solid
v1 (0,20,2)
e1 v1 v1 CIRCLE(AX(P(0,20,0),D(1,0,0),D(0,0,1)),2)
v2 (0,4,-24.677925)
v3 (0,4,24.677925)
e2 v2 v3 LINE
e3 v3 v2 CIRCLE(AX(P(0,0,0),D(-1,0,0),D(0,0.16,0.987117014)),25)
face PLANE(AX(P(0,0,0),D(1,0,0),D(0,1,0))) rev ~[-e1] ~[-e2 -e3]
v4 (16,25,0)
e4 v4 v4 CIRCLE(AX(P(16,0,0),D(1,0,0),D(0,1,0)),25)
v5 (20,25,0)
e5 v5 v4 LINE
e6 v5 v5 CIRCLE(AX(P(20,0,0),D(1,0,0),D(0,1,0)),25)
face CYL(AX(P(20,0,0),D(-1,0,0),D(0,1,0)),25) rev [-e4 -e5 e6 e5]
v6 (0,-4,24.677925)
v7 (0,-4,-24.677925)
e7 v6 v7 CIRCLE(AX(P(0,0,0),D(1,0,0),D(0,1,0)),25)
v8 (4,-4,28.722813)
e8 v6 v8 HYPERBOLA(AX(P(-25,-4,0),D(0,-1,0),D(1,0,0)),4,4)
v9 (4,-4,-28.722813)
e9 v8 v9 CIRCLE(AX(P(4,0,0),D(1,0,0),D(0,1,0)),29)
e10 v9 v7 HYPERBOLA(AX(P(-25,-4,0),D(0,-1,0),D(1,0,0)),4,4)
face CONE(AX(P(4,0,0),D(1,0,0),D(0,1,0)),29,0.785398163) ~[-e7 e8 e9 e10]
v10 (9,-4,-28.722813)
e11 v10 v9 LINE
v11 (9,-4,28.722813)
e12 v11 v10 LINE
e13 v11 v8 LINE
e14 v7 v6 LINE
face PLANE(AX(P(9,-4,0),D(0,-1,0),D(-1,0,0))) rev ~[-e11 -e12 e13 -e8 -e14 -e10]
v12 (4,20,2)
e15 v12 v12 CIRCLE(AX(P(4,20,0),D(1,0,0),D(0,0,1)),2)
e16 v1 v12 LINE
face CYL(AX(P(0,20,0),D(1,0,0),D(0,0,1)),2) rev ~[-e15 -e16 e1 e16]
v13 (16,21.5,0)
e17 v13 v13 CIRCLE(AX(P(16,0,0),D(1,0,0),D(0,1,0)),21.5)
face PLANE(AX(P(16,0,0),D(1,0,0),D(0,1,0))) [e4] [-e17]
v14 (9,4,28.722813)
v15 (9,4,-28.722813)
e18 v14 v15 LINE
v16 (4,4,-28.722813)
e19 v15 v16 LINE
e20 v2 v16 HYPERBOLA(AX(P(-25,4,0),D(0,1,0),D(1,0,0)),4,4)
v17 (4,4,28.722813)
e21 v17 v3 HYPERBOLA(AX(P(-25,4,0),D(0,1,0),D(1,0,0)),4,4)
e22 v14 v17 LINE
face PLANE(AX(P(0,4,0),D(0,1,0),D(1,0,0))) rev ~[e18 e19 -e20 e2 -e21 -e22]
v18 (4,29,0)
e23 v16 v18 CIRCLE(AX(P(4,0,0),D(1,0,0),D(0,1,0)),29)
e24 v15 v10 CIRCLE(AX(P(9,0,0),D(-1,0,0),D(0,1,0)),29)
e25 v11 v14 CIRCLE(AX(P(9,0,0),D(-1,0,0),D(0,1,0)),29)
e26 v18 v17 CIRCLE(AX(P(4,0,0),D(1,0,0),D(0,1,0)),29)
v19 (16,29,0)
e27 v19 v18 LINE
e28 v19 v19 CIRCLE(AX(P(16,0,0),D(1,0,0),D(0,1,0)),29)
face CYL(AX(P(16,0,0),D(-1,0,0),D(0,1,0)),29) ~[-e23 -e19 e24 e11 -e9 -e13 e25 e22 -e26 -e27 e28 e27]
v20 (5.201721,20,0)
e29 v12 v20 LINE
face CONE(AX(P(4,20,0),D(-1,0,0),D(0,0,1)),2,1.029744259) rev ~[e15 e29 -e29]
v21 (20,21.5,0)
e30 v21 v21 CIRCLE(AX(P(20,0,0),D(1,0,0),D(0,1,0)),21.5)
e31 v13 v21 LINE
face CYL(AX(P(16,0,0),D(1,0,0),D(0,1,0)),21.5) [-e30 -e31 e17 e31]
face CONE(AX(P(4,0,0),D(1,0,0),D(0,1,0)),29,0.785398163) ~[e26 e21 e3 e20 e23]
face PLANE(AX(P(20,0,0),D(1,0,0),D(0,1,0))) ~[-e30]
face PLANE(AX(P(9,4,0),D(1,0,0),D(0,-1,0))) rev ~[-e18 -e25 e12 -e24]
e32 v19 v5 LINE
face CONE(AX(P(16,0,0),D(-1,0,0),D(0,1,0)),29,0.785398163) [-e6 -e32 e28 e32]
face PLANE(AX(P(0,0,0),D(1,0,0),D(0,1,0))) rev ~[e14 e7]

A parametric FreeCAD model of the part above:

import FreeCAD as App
import Part
import Sketcher

V = App.Vector


def add_polygon(sketch, points):
    """Adds a closed chain of lines whose ends are joined by coincident constraints."""
    first, n = sketch.GeometryCount, len(points)
    for a, b in zip(points, points[1:] + points[:1]):
        sketch.addGeometry(Part.LineSegment(App.Vector(*a, 0), App.Vector(*b, 0)), False)
    for i in range(n):
        sketch.addConstraint(Sketcher.Constraint("Coincident", first + i, 2, first + (i + 1) % n, 1))

doc = App.newDocument("Part")
body = doc.addObject("PartDesign::Body", "Body")

# Sketch on XY plane
sketch1 = doc.addObject("Sketcher::SketchObject", "Sketch")
body.addObject(sketch1)
sketch1.AttachmentSupport = (doc.XY_Plane, [""])
sketch1.MapMode = "FlatFace"
add_polygon(sketch1, [(0, 25), (0, 0), (20, 0), (20, 25), (16, 29), (4, 29)])  # lines 0-5
sketch1.addConstraint([
    Sketcher.Constraint("Vertical", 0),
    Sketcher.Constraint("Horizontal", 1),
    Sketcher.Constraint("Vertical", 2),
    Sketcher.Constraint("Horizontal", 4),
    Sketcher.Constraint("Coincident", 0, 2, -1, 1),
    Sketcher.Constraint("Perpendicular", 3, 5),
    Sketcher.Constraint("Horizontal", 2, 2, 5, 2),
    Sketcher.Constraint("Equal", 3, 5),
    Sketcher.Constraint("DistanceX", 1, 1, 1, 2, 20.0),
    Sketcher.Constraint("DistanceY", -1, 1, 3, 2, 29.0),
    Sketcher.Constraint("DistanceX", -1, 1, 4, 2, 4.0),
])
revolution = doc.addObject("PartDesign::Revolution", "Revolution")
body.addObject(revolution)
revolution.Profile = sketch1
revolution.ReferenceAxis = (sketch1, ["H_Axis"])
revolution.Angle = 360

# Sketch on XY plane
sketch2 = doc.addObject("Sketcher::SketchObject", "Sketch001")
body.addObject(sketch2)
sketch2.AttachmentSupport = (doc.XY_Plane, [""])
sketch2.MapMode = "FlatFace"
add_polygon(sketch2, [(9, 4), (0, 4), (0, -4), (9, -4)])  # lines 0-3
sketch2.addConstraint([
    Sketcher.Constraint("Horizontal", 0),
    Sketcher.Constraint("Vertical", 1),
    Sketcher.Constraint("Horizontal", 2),
    Sketcher.Constraint("Vertical", 3),
    Sketcher.Constraint("Symmetric", 0, 2, 1, 2, -1, 1),
    Sketcher.Constraint("DistanceX", 0, 2, 0, 1, 9.0),
    Sketcher.Constraint("DistanceY", 1, 2, 1, 1, 8.0),
])
pocket1 = doc.addObject("PartDesign::Pocket", "Pocket")
body.addObject(pocket1)
pocket1.Profile = sketch2
pocket1.Type = "ThroughAll"
pocket1.Midplane = True

# Sketch on YZ plane
sketch3 = doc.addObject("Sketcher::SketchObject", "Sketch002")
body.addObject(sketch3)
sketch3.AttachmentSupport = (doc.YZ_Plane, [""])
sketch3.MapMode = "FlatFace"
sketch3.addGeometry(Part.Circle(V(20, 0, 0), V(0, 0, 1), 2), False)
sketch3.addConstraint([
    Sketcher.Constraint("PointOnObject", 0, 3, -1),
    Sketcher.Constraint("Diameter", 0, 4.0),
    Sketcher.Constraint("DistanceX", -1, 1, 0, 3, 20.0),
])
doc.recompute()
hole = doc.addObject("PartDesign::Hole", "Hole")
body.addObject(hole)
hole.Profile = sketch3
hole.ThreadType = "None"
hole.Diameter = 4
hole.DepthType = "Dimension"
hole.Depth = 4
hole.DrillPoint = "Angled"
hole.DrillPointAngle = 118
hole.Reversed = True

# Sketch on XY plane
sketch4 = doc.addObject("Sketcher::SketchObject", "Sketch003")
body.addObject(sketch4)
sketch4.AttachmentSupport = (doc.XY_Plane, [""])
sketch4.MapMode = "FlatFace"
add_polygon(sketch4, [(20, 21.5), (20, 25), (16, 25), (16, 21.5)])  # lines 0-3
sketch4.addConstraint([
    Sketcher.Constraint("Vertical", 0),
    Sketcher.Constraint("Horizontal", 1),
    Sketcher.Constraint("Vertical", 2),
    Sketcher.Constraint("Horizontal", 3),
    Sketcher.Constraint("DistanceX", 1, 2, 1, 1, 4.0),
    Sketcher.Constraint("DistanceY", 0, 1, 0, 2, 3.5),
    Sketcher.Constraint("DistanceX", -1, 1, 0, 2, 20.0),
    Sketcher.Constraint("DistanceY", -1, 1, 0, 2, 25.0),
])
groove = doc.addObject("PartDesign::Groove", "Groove")
body.addObject(groove)
groove.Profile = sketch4
groove.ReferenceAxis = (sketch4, ["H_Axis"])
groove.Angle = 360

doc.recompute()
